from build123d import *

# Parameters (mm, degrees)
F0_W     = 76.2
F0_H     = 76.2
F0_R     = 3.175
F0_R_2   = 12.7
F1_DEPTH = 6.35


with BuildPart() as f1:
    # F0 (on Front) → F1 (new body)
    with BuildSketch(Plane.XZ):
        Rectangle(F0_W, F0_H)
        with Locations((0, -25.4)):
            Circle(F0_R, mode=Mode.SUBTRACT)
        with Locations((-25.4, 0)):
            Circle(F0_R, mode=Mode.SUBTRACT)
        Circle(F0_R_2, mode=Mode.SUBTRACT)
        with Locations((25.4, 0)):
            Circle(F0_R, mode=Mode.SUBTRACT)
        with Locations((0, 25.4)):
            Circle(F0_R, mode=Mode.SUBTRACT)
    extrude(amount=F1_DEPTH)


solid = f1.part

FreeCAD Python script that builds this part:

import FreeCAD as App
import Part
import Sketcher
Q = App.Units.Quantity

doc = App.newDocument("Part")
params = doc.addObject("Spreadsheet::Sheet", "Params")
for row, (alias, value) in enumerate([
    ("sketch1_diameter", "1 in"),
    ("sketch1_diameter2", "0.25 in"),
    ("sketch1_width", "3 in"),
    ("pad1_length", "0.25 in"),
], start=1):
    params.set(f"A{row}", alias)
    params.set(f"B{row}", "=" + value)
    params.setAlias(f"B{row}", alias)

body = doc.addObject("PartDesign::Body", "Body")

# Sketch on XZ plane
sketch1 = body.newObject("Sketcher::SketchObject", "Sketch")
sketch1.AttachmentSupport = (doc.getObject("XZ_Plane"), [""])
sketch1.MapMode = "FlatFace"
sketch1.addGeometry([
    Part.LineSegment(App.Vector(-38.1, 38.1, 0), App.Vector(-38.1, -38.1, 0)),  # 0
    Part.LineSegment(App.Vector(-38.1, -38.1, 0), App.Vector(38.1, -38.1, 0)),  # 1
    Part.LineSegment(App.Vector(38.1, -38.1, 0), App.Vector(38.1, 38.1, 0)),  # 2
    Part.LineSegment(App.Vector(38.1, 38.1, 0), App.Vector(-38.1, 38.1, 0)),  # 3
    Part.Circle(App.Vector(0, -25.4, 0), App.Vector(0, 0, 1), 3.175),  # 4
    Part.Circle(App.Vector(-25.4, 0, 0), App.Vector(0, 0, 1), 3.175),  # 5
    Part.Circle(App.Vector(0, 0, 0), App.Vector(0, 0, 1), 12.7),  # 6
    Part.Circle(App.Vector(25.4, 0, 0), App.Vector(0, 0, 1), 3.175),  # 7
    Part.Circle(App.Vector(0, 25.4, 0), App.Vector(0, 0, 1), 3.175),  # 8
], False)
sketch1.addConstraint([
    Sketcher.Constraint("Coincident", 0, 2, 1, 1),
    Sketcher.Constraint("Coincident", 1, 2, 2, 1),
    Sketcher.Constraint("Coincident", 2, 2, 3, 1),
    Sketcher.Constraint("Coincident", 3, 2, 0, 1),
    Sketcher.Constraint("Vertical", 0),
    Sketcher.Constraint("Horizontal", 1),
    Sketcher.Constraint("Vertical", 2),
    Sketcher.Constraint("Horizontal", 3),
    Sketcher.Constraint("Coincident", 6, 3, -1, 1),
    Sketcher.Constraint("Equal", 4, 5),
    Sketcher.Constraint("Equal", 5, 7),
    Sketcher.Constraint("Equal", 7, 8),
    Sketcher.Constraint("Symmetric", 5, 3, 7, 3, -1, 1),
    Sketcher.Constraint("Symmetric", 4, 3, 8, 3, -1, 1),
    Sketcher.Constraint("Symmetric", 0, 2, 2, 2, -1, 1),
    Sketcher.Constraint("PointOnObject", 4, 3, -2),
    Sketcher.Constraint("PointOnObject", 5, 3, -1),
    Sketcher.Constraint("Equal", 3, 0),
    Sketcher.Constraint("Diameter", 6, Q("1 in")),
    Sketcher.Constraint("Diameter", 4, Q("0.25 in")),
    Sketcher.Constraint("DistanceX", 1, 1, 1, 2, Q("3 in")),
    Sketcher.Constraint("DistanceY", 4, 3, -1, 1, Q("1 in")),
    Sketcher.Constraint("DistanceX", 5, 3, -1, 1, Q("1 in")),
])
sketch1.setExpression("Constraints[18]", "Params.sketch1_diameter")
sketch1.setExpression("Constraints[19]", "Params.sketch1_diameter2")
sketch1.setExpression("Constraints[20]", "Params.sketch1_width")
pad1 = body.newObject("PartDesign::Pad", "Pad")
pad1.Profile = sketch1
pad1.setExpression("Length", "Params.pad1_length")

doc.recompute()
